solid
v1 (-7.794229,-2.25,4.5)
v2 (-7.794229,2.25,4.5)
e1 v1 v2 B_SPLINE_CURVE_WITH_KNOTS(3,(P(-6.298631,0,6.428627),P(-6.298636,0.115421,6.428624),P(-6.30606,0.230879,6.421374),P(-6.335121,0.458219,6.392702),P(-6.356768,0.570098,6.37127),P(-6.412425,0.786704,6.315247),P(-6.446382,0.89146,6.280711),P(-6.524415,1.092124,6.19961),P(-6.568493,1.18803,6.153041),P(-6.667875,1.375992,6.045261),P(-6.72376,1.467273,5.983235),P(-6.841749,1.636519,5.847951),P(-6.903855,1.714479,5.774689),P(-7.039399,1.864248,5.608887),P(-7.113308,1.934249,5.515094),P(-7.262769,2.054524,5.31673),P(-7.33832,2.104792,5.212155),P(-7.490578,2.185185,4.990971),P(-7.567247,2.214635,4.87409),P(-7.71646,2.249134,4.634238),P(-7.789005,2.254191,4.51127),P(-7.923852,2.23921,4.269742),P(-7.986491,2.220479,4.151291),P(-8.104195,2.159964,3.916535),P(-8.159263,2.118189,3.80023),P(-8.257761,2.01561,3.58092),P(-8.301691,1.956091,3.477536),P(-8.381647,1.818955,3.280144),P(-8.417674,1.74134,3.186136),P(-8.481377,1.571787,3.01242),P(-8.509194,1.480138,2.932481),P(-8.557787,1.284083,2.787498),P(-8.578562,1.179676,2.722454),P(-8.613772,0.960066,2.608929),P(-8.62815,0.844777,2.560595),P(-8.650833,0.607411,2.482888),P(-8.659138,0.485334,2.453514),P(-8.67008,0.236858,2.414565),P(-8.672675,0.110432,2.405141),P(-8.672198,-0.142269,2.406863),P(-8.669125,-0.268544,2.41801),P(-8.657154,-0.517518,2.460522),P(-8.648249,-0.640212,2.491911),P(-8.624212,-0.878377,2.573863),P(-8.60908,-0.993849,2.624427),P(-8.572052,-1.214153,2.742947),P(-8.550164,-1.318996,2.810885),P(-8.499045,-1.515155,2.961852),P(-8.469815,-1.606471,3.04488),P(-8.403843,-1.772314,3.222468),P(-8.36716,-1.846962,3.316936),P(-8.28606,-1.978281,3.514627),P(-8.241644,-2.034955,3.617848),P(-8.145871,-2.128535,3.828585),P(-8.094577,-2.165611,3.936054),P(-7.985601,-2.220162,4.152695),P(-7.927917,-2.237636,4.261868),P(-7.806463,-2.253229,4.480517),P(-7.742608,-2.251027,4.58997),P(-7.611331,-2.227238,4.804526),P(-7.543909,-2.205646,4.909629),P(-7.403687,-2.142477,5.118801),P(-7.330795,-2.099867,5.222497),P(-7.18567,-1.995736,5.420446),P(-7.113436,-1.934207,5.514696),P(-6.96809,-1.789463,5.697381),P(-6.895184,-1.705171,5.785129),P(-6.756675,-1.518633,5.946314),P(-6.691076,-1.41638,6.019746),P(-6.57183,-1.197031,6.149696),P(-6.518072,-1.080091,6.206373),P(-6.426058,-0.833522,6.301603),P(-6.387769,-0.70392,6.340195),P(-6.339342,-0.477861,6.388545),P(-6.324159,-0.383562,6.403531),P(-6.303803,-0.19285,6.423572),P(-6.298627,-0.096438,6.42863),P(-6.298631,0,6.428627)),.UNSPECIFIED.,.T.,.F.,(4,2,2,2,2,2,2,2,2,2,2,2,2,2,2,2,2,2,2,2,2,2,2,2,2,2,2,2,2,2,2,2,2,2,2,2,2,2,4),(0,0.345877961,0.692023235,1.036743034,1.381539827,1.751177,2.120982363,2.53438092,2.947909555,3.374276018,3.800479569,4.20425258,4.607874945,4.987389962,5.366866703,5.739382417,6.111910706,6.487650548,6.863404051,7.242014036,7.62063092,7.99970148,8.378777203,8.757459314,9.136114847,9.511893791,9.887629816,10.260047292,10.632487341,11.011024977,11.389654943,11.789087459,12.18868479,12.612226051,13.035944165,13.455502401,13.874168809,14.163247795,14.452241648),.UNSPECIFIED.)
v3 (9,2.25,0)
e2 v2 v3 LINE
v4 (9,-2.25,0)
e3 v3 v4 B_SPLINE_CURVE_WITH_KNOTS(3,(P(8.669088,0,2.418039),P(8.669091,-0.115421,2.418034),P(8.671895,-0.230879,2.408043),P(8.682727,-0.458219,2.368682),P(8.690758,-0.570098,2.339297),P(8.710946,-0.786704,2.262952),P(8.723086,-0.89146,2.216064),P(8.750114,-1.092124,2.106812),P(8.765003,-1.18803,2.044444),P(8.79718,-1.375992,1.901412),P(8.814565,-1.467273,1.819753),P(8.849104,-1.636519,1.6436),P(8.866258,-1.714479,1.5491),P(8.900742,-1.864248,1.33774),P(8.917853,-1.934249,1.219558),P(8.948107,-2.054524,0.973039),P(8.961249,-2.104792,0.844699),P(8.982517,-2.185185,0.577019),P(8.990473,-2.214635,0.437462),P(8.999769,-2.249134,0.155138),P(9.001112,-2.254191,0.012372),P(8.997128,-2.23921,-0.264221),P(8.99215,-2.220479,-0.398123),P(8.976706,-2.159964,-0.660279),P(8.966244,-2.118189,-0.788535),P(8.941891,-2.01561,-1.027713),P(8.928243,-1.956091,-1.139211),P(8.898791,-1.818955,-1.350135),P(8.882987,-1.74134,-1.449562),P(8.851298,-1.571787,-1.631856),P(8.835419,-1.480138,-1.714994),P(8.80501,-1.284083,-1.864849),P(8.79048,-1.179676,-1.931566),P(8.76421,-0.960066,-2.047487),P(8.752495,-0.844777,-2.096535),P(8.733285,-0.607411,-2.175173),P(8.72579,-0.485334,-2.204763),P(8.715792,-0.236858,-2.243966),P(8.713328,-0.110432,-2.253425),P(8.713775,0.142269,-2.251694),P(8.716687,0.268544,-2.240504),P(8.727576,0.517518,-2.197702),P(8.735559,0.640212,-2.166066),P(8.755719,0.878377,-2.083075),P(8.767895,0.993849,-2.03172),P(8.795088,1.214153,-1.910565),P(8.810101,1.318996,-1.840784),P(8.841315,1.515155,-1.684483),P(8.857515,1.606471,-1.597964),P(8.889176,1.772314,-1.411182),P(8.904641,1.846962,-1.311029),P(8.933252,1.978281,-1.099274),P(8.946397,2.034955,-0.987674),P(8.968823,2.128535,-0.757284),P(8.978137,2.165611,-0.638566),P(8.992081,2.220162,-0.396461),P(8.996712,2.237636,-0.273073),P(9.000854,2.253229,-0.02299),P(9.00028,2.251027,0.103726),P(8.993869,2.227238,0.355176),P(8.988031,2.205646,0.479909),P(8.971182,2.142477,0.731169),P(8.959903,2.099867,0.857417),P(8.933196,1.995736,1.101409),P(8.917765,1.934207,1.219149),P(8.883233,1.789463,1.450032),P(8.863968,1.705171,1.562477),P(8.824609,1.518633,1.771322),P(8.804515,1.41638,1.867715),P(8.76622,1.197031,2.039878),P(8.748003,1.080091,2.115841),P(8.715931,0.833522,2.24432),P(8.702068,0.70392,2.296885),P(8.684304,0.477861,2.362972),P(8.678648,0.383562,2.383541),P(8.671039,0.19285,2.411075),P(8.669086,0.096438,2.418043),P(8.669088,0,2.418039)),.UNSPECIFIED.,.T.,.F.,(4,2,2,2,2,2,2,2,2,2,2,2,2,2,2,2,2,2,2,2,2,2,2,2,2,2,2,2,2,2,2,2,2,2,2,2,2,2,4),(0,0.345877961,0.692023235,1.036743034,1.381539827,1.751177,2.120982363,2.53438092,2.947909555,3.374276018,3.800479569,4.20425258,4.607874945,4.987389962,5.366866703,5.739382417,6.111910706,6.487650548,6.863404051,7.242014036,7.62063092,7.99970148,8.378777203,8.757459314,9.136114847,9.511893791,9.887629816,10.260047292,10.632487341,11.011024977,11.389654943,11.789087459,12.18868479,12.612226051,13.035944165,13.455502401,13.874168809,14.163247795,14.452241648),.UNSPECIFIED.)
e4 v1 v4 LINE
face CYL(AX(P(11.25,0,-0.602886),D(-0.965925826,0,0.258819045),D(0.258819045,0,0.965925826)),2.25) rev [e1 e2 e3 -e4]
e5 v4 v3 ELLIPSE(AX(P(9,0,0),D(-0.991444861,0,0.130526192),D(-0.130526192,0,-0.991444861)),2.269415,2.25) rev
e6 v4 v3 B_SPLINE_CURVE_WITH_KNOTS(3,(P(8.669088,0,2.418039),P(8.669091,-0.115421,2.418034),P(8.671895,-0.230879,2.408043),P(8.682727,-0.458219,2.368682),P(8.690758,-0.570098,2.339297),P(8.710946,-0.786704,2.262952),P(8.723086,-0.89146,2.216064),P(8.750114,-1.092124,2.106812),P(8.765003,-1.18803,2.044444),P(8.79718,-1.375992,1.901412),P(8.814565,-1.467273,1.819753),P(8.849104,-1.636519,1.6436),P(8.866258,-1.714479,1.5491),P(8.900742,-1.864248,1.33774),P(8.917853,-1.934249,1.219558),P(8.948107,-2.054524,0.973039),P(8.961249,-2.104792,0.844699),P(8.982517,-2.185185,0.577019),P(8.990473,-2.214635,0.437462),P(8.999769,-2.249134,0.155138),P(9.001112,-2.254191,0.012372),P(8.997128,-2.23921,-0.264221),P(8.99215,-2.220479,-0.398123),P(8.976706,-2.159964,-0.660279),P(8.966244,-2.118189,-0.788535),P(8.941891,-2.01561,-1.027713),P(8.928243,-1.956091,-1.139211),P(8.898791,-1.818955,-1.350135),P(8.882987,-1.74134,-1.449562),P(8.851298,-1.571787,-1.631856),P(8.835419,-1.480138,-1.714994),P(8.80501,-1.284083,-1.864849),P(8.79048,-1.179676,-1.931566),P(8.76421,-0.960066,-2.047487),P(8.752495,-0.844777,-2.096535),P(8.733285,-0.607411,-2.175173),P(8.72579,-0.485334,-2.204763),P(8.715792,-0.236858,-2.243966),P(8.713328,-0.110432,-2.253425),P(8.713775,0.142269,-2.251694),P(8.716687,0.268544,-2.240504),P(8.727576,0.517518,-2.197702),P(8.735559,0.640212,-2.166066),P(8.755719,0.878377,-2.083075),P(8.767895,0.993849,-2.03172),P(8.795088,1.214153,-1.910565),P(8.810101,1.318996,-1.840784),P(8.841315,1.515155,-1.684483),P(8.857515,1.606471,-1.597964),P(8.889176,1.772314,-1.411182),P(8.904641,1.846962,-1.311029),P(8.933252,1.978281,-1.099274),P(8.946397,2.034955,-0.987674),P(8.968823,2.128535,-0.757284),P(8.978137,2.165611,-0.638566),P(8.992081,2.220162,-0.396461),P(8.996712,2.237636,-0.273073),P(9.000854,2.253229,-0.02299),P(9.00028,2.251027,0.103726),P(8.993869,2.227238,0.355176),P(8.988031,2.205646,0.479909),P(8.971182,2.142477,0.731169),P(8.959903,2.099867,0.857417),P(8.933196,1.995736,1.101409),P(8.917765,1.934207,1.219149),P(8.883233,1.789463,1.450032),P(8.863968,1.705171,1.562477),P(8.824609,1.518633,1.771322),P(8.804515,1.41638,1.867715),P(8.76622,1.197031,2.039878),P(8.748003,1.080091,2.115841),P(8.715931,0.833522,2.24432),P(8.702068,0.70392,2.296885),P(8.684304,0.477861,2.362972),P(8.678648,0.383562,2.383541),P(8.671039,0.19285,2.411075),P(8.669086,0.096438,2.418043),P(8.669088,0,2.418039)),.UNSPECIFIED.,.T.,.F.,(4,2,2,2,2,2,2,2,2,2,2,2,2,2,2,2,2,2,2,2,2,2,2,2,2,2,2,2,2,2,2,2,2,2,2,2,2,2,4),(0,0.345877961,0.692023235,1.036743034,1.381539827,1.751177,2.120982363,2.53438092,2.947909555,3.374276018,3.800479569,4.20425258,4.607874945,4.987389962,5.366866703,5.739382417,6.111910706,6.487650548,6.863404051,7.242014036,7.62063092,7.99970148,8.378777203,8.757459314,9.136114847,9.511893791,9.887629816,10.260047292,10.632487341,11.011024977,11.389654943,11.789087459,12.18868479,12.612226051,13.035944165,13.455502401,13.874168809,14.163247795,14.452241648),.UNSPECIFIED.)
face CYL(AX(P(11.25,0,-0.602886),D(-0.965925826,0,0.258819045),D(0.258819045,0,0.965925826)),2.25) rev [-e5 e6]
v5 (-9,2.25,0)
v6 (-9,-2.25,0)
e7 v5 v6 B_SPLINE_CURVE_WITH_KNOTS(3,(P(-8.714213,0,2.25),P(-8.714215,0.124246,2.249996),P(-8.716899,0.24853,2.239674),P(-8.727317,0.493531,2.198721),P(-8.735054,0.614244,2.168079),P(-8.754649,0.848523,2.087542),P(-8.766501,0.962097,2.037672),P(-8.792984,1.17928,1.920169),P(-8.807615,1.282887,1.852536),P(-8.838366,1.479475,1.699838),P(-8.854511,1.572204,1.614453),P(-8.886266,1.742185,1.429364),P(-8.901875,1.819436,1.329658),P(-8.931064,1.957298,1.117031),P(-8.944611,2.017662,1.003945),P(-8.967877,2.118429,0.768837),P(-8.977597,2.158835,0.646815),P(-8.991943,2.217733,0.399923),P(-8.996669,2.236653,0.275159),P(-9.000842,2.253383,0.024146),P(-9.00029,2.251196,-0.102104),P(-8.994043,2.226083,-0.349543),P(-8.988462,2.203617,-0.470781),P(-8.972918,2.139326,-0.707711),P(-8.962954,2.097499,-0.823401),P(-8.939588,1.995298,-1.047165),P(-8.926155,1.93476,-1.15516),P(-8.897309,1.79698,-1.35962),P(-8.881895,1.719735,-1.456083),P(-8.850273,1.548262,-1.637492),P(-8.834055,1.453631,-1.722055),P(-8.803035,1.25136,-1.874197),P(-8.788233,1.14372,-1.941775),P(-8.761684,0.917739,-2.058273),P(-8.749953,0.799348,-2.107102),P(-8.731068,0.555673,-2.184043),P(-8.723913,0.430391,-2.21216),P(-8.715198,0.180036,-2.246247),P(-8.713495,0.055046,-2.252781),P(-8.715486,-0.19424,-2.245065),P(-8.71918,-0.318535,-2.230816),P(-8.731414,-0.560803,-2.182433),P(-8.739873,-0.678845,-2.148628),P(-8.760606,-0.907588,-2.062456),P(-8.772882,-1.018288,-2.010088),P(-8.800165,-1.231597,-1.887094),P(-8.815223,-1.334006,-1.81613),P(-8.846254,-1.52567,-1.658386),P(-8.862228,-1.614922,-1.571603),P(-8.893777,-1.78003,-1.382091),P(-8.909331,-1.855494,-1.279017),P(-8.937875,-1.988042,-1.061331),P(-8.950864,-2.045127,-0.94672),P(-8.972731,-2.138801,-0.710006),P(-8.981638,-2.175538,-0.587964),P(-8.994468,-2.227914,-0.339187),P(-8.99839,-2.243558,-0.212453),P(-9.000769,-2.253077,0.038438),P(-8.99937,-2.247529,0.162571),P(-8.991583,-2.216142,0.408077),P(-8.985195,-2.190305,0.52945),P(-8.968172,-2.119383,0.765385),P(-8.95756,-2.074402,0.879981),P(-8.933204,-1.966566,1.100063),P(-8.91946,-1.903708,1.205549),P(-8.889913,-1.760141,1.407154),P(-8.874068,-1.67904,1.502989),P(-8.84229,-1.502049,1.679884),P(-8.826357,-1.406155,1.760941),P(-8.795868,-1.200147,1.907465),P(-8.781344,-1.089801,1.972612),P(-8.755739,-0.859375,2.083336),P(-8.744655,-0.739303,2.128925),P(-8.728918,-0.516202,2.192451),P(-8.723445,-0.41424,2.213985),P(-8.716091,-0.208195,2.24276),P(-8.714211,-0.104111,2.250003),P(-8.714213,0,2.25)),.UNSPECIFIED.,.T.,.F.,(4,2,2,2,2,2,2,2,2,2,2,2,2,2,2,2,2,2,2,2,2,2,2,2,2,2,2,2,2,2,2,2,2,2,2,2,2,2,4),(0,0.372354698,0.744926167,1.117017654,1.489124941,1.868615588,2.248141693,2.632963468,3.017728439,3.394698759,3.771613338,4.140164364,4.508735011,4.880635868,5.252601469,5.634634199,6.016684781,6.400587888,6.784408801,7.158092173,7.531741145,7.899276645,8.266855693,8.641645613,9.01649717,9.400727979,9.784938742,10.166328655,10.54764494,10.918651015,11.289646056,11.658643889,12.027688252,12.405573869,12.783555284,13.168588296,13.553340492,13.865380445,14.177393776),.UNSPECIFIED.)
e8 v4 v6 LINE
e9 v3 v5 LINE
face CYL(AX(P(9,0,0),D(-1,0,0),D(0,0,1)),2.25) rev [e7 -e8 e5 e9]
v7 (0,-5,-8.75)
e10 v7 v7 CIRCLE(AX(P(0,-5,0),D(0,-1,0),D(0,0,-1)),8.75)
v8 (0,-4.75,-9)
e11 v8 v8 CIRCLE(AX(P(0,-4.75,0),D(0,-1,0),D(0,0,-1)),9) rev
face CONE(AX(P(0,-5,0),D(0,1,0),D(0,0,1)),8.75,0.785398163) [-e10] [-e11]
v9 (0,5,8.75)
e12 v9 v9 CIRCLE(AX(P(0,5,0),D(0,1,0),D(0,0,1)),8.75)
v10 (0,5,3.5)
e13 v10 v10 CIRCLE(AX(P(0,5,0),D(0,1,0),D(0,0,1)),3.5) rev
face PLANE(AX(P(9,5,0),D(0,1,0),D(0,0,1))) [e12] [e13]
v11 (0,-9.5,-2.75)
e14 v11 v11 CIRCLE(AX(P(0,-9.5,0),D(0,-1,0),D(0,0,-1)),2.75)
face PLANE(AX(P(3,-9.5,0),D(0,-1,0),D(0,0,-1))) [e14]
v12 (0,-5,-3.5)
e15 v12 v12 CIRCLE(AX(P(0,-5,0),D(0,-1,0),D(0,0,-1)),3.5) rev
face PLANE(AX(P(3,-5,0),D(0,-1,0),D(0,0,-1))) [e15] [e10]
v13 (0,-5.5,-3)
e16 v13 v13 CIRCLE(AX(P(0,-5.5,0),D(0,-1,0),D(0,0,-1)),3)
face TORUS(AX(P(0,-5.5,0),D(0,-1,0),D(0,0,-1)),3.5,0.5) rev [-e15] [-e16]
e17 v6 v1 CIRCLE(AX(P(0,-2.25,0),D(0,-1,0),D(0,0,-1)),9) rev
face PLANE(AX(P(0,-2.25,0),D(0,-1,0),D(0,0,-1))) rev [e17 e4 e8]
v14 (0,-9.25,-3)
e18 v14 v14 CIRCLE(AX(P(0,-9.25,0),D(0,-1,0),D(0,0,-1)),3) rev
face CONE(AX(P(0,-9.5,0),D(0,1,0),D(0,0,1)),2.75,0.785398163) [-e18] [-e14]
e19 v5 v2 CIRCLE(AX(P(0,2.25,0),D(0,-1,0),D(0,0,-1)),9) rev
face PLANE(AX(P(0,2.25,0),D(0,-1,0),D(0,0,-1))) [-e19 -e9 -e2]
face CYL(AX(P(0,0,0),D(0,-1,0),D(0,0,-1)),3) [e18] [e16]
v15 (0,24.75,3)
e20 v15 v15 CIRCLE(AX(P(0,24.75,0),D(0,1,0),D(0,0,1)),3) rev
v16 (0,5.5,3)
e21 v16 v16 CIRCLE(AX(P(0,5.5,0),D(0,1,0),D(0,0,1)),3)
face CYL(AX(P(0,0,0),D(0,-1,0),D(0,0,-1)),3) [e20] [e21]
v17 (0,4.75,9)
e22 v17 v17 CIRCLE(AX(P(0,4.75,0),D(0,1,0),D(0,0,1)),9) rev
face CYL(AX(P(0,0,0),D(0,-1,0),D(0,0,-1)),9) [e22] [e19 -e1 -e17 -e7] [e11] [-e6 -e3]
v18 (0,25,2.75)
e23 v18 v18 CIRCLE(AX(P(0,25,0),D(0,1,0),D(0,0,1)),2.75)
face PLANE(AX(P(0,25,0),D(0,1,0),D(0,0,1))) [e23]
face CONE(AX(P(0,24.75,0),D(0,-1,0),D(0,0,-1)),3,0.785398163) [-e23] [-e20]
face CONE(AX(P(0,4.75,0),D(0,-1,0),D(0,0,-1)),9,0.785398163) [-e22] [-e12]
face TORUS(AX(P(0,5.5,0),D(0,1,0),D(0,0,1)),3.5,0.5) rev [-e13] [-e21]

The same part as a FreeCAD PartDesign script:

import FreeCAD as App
import Part
import Sketcher
from FreeCAD import Vector
Q = App.Units.Quantity


def edges_at(feature, points):
    """Names of the edges that pass closest to the given points."""
    edges = feature.Shape.Edges
    near = lambda p: min(range(len(edges)), key=lambda i: edges[i].distToShape(Part.Vertex(*p))[0])
    return sorted({f"Edge{near(p) + 1}" for p in points})

doc = App.newDocument("Part")
body = doc.addObject("PartDesign::Body", "Body")

sketch1 = body.newObject("Sketcher::SketchObject", "Sketch")
sketch1.AttachmentSupport = (doc.getObject("XY_Plane"), [""])
sketch1.MapMode = "FlatFace"
sketch1.addGeometry(Part.LineSegment(Vector(3, 25, 0), Vector(0, 25, 0)), False)
sketch1.addGeometry(Part.LineSegment(Vector(0, 25, 0), Vector(0, -9.5, 0)), False)
sketch1.addGeometry(Part.LineSegment(Vector(0, -9.5, 0), Vector(3, -9.5, 0)), False)
sketch1.addGeometry(Part.LineSegment(Vector(3, -9.5, 0), Vector(3, -5, 0)), False)
sketch1.addGeometry(Part.LineSegment(Vector(3, -5, 0), Vector(9, -5, 0)), False)
sketch1.addGeometry(Part.LineSegment(Vector(9, -5, 0), Vector(9, 5, 0)), False)
sketch1.addGeometry(Part.LineSegment(Vector(9, 5, 0), Vector(3, 5, 0)), False)
sketch1.addGeometry(Part.LineSegment(Vector(3, 5, 0), Vector(3, 25, 0)), False)
sketch1.addConstraint(Sketcher.Constraint("Coincident", 0, 2, 1, 1))
sketch1.addConstraint(Sketcher.Constraint("Coincident", 1, 2, 2, 1))
sketch1.addConstraint(Sketcher.Constraint("Coincident", 2, 2, 3, 1))
sketch1.addConstraint(Sketcher.Constraint("Coincident", 3, 2, 4, 1))
sketch1.addConstraint(Sketcher.Constraint("Coincident", 4, 2, 5, 1))
sketch1.addConstraint(Sketcher.Constraint("Coincident", 5, 2, 6, 1))
sketch1.addConstraint(Sketcher.Constraint("Coincident", 6, 2, 7, 1))
sketch1.addConstraint(Sketcher.Constraint("Coincident", 7, 2, 0, 1))
sketch1.addConstraint(Sketcher.Constraint("Horizontal", 0))
sketch1.addConstraint(Sketcher.Constraint("Vertical", 1))
sketch1.addConstraint(Sketcher.Constraint("Horizontal", 2))
sketch1.addConstraint(Sketcher.Constraint("Vertical", 3))
sketch1.addConstraint(Sketcher.Constraint("Horizontal", 4))
sketch1.addConstraint(Sketcher.Constraint("Vertical", 5))
sketch1.addConstraint(Sketcher.Constraint("Horizontal", 6))
sketch1.addConstraint(Sketcher.Constraint("Vertical", 7))
sketch1.addConstraint(Sketcher.Constraint("Symmetric", 3, 2, 6, 2, -1))
sketch1.addConstraint(Sketcher.Constraint("PointOnObject", 0, 2, -2))
sketch1.addConstraint(Sketcher.Constraint("DistanceX", 0, 2, 0, 1, 3.0))
sketch1.addConstraint(Sketcher.Constraint("DistanceX", 4, 1, 4, 2, 6.0))
sketch1.addConstraint(Sketcher.Constraint("DistanceY", 5, 1, 5, 2, 10.0))
sketch1.addConstraint(Sketcher.Constraint("DistanceY", 7, 1, 7, 2, 20.0))
sketch1.addConstraint(Sketcher.Constraint("DistanceY", 1, 2, 1, 1, 34.5))
revolution = body.newObject("PartDesign::Revolution", "Revolution")
revolution.Profile = sketch1
revolution.ReferenceAxis = (sketch1, ["V_Axis"])
revolution.Angle = 360

sketch2 = body.newObject("Sketcher::SketchObject", "Sketch001")
sketch2.AttachmentSupport = (doc.getObject("YZ_Plane"), [""])
sketch2.MapMode = "FlatFace"
sketch2.AttachmentOffset = App.Placement(Vector(0, 0, -9), App.Rotation())
sketch2.addGeometry(Part.Circle(Vector(0, 0, 0), Vector(0, 0, 1), 2.2), False)
sketch2.addConstraint(Sketcher.Constraint("Coincident", 0, 3, -1, 1))
sketch2.addConstraint(Sketcher.Constraint("Diameter", 0, 4.5))
pocket1 = body.newObject("PartDesign::Pocket", "Pocket")
pocket1.Profile = sketch2
pocket1.Type = "ThroughAll"
pocket1.Reversed = True

sketch3 = body.newObject("Sketcher::SketchObject", "Sketch002")
sketch3.Placement = App.Placement(Vector(-7.794229, 0, 4.5), App.Rotation(Vector(0.258819045, 0, 0.965925826), Vector(0, 0.999999999, 0), Vector(-0.965925826, 0, 0.258819045), "ZXY"))
sketch3.addGeometry(Part.Circle(Vector(0, 0, 0), Vector(0, 0, 1), 2.2), False)
sketch3.addConstraint(Sketcher.Constraint("Coincident", 0, 3, -1, 1))
sketch3.addConstraint(Sketcher.Constraint("Diameter", 0, 4.5))
pocket2 = body.newObject("PartDesign::Pocket", "Pocket001")
pocket2.Profile = sketch3
pocket2.Type = "ThroughAll"
pocket2.Midplane = True

sketch4 = body.newObject("Sketcher::SketchObject", "Sketch003")
sketch4.AttachmentSupport = (doc.getObject("XZ_Plane"), [""])
sketch4.MapMode = "FlatFace"
sketch4.addGeometry(Part.LineSegment(Vector(9, 0, 0), Vector(-11, 0, 0)), False)
sketch4.addGeometry(Part.LineSegment(Vector(-11, 0, 0), Vector(-10, 5, 0)), False)
sketch4.addGeometry(Part.LineSegment(Vector(-10, 5, 0), Vector(9, 0, 0)), False)
sketch4.addConstraint(Sketcher.Constraint("Coincident", 0, 2, 1, 1))
sketch4.addConstraint(Sketcher.Constraint("Coincident", 1, 2, 2, 1))
sketch4.addConstraint(Sketcher.Constraint("Coincident", 2, 2, 0, 1))
sketch4.addConstraint(Sketcher.Constraint("Horizontal", 0))
sketch4.addConstraint(Sketcher.Constraint("PointOnObject", 0, 2, -1))
sketch4.addConstraint(Sketcher.Constraint("Angle", 2, Q("-15 deg")))
sketch4.addConstraint(Sketcher.Constraint("DistanceX", -1, 1, 2, 2, 9.0))
sketch4.addConstraint(Sketcher.Constraint("DistanceX", 0, 2, 0, 1, 19.844388))
sketch4.addConstraint(Sketcher.Constraint("DistanceX", 1, 2, -1, 1, 10.428761))
pocket3 = body.newObject("PartDesign::Pocket", "Pocket002")
pocket3.Profile = sketch4
pocket3.Length = 4.5
pocket3.Midplane = True
doc.recompute()

fillet = body.newObject("PartDesign::Fillet", "Fillet")
fillet.Base = (pocket3, edges_at(pocket3, [(-3, -5, 0), (-3, 5, 0)]))
fillet.Radius = 0.5
doc.recompute()

chamfer = body.newObject("PartDesign::Chamfer", "Chamfer")
chamfer.Base = (fillet, edges_at(fillet, [(-3, -9.5, 0), (-3, 25, 0)]))
chamfer.Size = 0.25
doc.recompute()

chamfer2 = body.newObject("PartDesign::Chamfer", "Chamfer001")
chamfer2.Base = (chamfer, edges_at(chamfer, [(-9, -5, 0), (-9, 5, 0)]))
chamfer2.Size = 0.25

doc.recompute()
